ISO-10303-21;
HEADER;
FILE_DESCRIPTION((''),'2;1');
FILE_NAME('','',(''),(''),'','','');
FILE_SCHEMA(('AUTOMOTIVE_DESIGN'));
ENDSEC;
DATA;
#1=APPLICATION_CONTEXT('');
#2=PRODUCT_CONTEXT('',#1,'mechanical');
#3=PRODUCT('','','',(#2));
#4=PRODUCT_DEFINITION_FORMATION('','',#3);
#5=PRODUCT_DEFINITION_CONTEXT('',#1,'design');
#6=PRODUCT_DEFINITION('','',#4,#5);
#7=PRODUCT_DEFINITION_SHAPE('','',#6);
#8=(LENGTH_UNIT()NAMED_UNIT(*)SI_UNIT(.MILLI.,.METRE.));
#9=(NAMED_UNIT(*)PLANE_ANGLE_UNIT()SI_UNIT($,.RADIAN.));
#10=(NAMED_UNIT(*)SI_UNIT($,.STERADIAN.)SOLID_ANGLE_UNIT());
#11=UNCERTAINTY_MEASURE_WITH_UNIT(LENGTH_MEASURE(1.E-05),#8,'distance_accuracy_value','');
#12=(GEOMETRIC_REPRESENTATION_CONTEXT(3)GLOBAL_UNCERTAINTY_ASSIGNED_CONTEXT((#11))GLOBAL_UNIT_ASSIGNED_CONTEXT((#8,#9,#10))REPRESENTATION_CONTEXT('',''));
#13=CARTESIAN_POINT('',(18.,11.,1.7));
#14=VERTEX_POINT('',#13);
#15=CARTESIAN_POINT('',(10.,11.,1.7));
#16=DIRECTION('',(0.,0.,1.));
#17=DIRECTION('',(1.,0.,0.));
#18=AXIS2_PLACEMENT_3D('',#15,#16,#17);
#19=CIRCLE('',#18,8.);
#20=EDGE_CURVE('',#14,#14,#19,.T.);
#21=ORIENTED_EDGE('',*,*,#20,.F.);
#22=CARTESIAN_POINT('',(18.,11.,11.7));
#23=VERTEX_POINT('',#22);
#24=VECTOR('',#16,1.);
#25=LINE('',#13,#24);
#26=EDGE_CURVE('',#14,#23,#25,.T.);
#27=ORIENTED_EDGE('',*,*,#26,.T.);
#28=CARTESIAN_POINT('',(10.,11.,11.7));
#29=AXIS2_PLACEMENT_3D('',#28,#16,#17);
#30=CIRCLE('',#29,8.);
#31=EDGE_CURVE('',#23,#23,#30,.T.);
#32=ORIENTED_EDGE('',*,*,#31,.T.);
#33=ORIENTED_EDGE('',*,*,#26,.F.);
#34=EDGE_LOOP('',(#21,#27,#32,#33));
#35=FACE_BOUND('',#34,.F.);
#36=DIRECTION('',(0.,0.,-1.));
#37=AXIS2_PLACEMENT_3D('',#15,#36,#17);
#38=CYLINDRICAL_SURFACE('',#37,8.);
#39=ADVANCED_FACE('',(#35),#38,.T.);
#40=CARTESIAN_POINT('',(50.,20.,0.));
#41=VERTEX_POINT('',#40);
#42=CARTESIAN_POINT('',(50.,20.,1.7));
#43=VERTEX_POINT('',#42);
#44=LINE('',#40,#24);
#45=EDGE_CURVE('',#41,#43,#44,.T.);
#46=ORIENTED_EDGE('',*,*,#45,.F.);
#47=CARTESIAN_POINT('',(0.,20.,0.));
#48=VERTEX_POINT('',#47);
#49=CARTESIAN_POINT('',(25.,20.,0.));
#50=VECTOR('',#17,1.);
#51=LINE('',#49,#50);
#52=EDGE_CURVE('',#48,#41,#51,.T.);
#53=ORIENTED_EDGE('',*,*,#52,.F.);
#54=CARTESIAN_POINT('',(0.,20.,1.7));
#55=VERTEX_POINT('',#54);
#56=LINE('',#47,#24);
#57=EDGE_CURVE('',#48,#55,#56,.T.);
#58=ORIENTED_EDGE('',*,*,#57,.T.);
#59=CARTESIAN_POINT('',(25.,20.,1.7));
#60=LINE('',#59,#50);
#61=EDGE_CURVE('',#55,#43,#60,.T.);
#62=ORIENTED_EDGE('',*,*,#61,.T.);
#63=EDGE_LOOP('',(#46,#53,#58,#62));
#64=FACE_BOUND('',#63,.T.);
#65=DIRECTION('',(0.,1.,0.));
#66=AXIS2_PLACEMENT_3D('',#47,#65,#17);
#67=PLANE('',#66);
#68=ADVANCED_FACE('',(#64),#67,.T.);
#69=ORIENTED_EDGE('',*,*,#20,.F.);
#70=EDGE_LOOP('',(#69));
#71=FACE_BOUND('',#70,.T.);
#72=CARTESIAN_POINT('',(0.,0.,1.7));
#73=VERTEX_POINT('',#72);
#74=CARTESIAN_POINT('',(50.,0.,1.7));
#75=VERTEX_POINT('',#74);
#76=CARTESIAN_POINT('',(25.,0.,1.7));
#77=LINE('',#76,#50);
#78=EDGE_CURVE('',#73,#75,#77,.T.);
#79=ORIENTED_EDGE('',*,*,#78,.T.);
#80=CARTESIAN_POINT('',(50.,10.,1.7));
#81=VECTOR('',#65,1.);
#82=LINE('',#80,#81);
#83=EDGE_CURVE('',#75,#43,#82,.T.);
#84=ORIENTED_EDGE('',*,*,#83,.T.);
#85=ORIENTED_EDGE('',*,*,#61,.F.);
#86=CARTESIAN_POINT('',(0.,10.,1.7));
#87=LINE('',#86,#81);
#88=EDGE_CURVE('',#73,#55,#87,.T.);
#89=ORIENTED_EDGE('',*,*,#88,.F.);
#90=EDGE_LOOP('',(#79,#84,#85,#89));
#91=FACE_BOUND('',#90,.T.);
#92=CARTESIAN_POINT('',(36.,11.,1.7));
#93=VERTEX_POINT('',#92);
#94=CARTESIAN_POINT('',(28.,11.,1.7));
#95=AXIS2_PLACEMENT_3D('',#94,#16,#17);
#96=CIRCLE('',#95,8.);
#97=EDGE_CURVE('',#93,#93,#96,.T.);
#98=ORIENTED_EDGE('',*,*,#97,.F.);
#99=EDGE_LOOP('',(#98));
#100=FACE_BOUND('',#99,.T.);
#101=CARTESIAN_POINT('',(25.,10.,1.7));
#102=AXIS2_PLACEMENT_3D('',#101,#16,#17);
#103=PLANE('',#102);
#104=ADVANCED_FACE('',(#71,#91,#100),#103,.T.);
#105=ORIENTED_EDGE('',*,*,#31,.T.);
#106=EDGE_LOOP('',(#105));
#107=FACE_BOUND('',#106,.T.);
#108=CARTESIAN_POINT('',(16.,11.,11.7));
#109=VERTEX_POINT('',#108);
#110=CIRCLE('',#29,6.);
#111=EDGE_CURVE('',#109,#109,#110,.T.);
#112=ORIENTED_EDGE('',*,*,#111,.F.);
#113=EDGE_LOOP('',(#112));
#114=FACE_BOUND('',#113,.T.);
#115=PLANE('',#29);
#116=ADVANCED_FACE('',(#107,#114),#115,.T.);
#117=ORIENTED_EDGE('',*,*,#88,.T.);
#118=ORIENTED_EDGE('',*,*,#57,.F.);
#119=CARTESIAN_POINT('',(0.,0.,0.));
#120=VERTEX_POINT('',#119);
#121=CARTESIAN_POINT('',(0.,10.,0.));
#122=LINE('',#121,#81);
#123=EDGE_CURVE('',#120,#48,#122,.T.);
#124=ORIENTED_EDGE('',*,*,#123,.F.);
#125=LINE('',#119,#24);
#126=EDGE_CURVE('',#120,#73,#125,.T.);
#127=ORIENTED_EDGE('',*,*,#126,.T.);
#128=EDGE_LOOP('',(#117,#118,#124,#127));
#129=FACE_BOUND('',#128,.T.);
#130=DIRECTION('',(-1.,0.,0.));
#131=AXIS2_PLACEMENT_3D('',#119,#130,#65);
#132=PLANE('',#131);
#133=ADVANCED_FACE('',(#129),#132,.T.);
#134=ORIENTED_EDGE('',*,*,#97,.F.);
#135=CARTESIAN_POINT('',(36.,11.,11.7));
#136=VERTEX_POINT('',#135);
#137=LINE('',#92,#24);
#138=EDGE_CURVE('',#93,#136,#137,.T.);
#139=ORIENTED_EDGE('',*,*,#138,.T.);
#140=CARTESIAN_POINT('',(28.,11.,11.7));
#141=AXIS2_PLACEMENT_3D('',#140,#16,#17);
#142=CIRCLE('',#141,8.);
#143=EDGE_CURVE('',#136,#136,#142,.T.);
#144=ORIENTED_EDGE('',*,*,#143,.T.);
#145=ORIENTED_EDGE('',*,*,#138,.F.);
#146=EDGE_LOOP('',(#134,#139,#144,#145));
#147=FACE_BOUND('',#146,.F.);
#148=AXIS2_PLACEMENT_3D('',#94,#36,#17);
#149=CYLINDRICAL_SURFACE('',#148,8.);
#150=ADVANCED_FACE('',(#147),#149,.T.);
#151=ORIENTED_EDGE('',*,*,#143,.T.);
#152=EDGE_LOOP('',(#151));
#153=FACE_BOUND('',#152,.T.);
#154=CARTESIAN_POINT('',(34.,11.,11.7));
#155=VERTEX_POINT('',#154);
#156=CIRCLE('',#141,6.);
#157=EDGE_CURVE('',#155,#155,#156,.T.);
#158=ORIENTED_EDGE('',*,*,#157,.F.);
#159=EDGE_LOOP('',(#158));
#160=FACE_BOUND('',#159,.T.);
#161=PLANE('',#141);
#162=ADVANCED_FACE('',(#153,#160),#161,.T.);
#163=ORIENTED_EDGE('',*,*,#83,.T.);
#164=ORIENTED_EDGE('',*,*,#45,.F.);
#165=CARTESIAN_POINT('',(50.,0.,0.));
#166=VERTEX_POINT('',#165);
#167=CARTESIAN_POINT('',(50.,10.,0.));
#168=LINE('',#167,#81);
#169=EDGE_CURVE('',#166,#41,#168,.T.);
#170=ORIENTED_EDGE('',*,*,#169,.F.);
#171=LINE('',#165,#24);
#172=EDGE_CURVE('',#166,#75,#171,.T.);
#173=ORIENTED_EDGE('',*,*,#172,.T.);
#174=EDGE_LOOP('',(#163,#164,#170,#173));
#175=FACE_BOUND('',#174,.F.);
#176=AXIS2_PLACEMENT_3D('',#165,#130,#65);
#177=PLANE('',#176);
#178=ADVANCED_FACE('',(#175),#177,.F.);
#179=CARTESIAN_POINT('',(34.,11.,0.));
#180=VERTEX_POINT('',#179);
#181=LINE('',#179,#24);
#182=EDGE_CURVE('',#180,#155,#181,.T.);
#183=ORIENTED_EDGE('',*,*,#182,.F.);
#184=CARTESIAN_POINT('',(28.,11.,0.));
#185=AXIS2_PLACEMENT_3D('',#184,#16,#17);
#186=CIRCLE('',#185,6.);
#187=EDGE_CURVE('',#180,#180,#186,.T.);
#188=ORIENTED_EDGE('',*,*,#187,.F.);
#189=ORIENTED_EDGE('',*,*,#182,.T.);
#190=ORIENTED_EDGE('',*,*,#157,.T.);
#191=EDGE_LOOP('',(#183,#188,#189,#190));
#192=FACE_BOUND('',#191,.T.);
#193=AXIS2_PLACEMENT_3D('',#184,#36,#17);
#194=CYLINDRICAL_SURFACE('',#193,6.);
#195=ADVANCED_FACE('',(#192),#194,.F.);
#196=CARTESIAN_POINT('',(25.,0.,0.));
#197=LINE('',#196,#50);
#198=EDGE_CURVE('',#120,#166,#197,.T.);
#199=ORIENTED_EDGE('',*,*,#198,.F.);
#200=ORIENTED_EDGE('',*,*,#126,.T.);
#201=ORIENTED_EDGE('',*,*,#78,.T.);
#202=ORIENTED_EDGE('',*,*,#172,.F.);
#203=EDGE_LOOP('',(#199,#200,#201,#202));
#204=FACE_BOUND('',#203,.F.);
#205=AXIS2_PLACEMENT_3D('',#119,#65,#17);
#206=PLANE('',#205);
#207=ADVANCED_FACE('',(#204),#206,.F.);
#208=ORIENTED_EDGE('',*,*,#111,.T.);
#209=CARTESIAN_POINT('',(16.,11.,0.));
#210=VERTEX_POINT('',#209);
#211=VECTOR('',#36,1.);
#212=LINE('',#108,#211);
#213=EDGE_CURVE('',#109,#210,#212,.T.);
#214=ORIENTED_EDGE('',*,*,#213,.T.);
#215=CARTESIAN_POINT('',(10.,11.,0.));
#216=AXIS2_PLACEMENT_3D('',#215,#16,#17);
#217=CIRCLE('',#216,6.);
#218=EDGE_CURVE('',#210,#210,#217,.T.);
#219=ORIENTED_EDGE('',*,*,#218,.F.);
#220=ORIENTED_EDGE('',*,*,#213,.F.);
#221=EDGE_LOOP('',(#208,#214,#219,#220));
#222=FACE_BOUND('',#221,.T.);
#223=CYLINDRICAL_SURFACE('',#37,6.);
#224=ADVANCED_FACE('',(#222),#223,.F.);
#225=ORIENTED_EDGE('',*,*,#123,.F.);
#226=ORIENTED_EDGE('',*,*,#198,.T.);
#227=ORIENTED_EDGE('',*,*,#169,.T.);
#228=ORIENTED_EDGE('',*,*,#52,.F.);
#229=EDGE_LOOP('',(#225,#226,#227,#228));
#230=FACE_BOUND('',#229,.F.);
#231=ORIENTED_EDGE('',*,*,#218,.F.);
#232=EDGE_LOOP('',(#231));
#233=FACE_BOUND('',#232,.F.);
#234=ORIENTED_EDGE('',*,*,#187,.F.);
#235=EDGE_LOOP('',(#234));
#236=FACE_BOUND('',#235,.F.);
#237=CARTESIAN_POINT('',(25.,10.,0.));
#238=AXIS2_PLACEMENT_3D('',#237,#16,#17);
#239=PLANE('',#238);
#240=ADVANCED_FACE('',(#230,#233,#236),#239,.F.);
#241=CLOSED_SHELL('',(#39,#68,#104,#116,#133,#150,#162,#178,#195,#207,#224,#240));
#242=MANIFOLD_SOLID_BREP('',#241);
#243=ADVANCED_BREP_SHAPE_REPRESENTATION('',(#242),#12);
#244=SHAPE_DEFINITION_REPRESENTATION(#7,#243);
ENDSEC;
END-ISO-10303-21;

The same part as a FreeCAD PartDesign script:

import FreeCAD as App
import Part
import Sketcher

V = App.Vector
Q = App.Units.Quantity


def add_polygon(sketch, points):
    """Adds a closed chain of lines whose ends are joined by coincident constraints."""
    first, n = sketch.GeometryCount, len(points)
    for a, b in zip(points, points[1:] + points[:1]):
        sketch.addGeometry(Part.LineSegment(App.Vector(*a, 0), App.Vector(*b, 0)), False)
    for i in range(n):
        sketch.addConstraint(Sketcher.Constraint("Coincident", first + i, 2, first + (i + 1) % n, 1))

doc = App.newDocument("Part")
params = doc.addObject("Spreadsheet::Sheet", "Params")
for row, (alias, value) in enumerate([
    ("sketch1_diameter", "12 mm"),
    ("sketch1_width", "50 mm"),
    ("sketch1_height", "20 mm"),
    ("pad1_length", "1.7 mm"),
    ("sketch2_diameter", "16 mm"),
    ("sketch2_diameter2", "12 mm"),
    ("pad2_length", "10 mm"),
], start=1):
    params.set(f"A{row}", alias)
    params.set(f"B{row}", "=" + value)
    params.setAlias(f"B{row}", alias)

body = doc.addObject("PartDesign::Body", "Body")

sketch1 = body.newObject("Sketcher::SketchObject", "Sketch")
sketch1.AttachmentSupport = (doc.getObject("XY_Plane"), [""])
sketch1.MapMode = "FlatFace"
add_polygon(sketch1, [(0, 20), (0, 0), (50, 0), (50, 20)])
sketch1.addGeometry(Part.Circle(V(10, 11, 0), V(0, 0, 1), 6), False)
sketch1.addGeometry(Part.Circle(V(28, 11, 0), V(0, 0, 1), 6), False)
sketch1.addConstraint(Sketcher.Constraint("Vertical", 0))
sketch1.addConstraint(Sketcher.Constraint("Horizontal", 1))
sketch1.addConstraint(Sketcher.Constraint("Vertical", 2))
sketch1.addConstraint(Sketcher.Constraint("Horizontal", 3))
sketch1.addConstraint(Sketcher.Constraint("Coincident", 0, 2, -1, 1))
sketch1.addConstraint(Sketcher.Constraint("Equal", 4, 5))
sketch1.addConstraint(Sketcher.Constraint("Horizontal", 4, 3, 5, 3))
sketch1.addConstraint(Sketcher.Constraint("Diameter", 4, Q("12 mm")))
sketch1.addConstraint(Sketcher.Constraint("DistanceX", 1, 1, 1, 2, Q("50 mm")))
sketch1.addConstraint(Sketcher.Constraint("DistanceY", 0, 2, 0, 1, Q("20 mm")))
sketch1.addConstraint(Sketcher.Constraint("DistanceX", -1, 1, 4, 3, Q("10 mm")))
sketch1.addConstraint(Sketcher.Constraint("DistanceY", -1, 1, 4, 3, Q("11 mm")))
sketch1.addConstraint(Sketcher.Constraint("DistanceX", -1, 1, 5, 3, Q("28 mm")))
sketch1.setExpression("Constraints[11]", "Params.sketch1_diameter")
sketch1.setExpression("Constraints[12]", "Params.sketch1_width")
sketch1.setExpression("Constraints[13]", "Params.sketch1_height")
pad1 = body.newObject("PartDesign::Pad", "Pad")
pad1.Profile = sketch1
pad1.setExpression("Length", "Params.pad1_length")

sketch2 = body.newObject("Sketcher::SketchObject", "Sketch001")
sketch2.AttachmentSupport = (doc.getObject("XY_Plane"), [""])
sketch2.MapMode = "FlatFace"
sketch2.AttachmentOffset = App.Placement(V(0, 0, 1.7), App.Rotation())
sketch2.addGeometry(Part.Circle(V(10, 11, 0), V(0, 0, 1), 8), False)
sketch2.addGeometry(Part.Circle(V(10, 11, 0), V(0, 0, 1), 6), False)
sketch2.addGeometry(Part.Circle(V(28, 11, 0), V(0, 0, 1), 8), False)
sketch2.addGeometry(Part.Circle(V(28, 11, 0), V(0, 0, 1), 6), False)
sketch2.addConstraint(Sketcher.Constraint("Coincident", 1, 3, 0, 3))
sketch2.addConstraint(Sketcher.Constraint("Coincident", 3, 3, 2, 3))
sketch2.addConstraint(Sketcher.Constraint("Equal", 0, 2))
sketch2.addConstraint(Sketcher.Constraint("Equal", 1, 3))
sketch2.addConstraint(Sketcher.Constraint("Horizontal", 1, 3, 2, 3))
sketch2.addConstraint(Sketcher.Constraint("Diameter", 0, Q("16 mm")))
sketch2.addConstraint(Sketcher.Constraint("Diameter", 1, Q("12 mm")))
sketch2.addConstraint(Sketcher.Constraint("DistanceX", -1, 1, 0, 3, Q("10 mm")))
sketch2.addConstraint(Sketcher.Constraint("DistanceY", -1, 1, 0, 3, Q("11 mm")))
sketch2.addConstraint(Sketcher.Constraint("DistanceX", -1, 1, 2, 3, Q("28 mm")))
sketch2.setExpression("Constraints[5]", "Params.sketch2_diameter")
sketch2.setExpression("Constraints[6]", "Params.sketch2_diameter2")
pad2 = body.newObject("PartDesign::Pad", "Pad001")
pad2.Profile = sketch2
pad2.setExpression("Length", "Params.pad2_length")

doc.recompute()
